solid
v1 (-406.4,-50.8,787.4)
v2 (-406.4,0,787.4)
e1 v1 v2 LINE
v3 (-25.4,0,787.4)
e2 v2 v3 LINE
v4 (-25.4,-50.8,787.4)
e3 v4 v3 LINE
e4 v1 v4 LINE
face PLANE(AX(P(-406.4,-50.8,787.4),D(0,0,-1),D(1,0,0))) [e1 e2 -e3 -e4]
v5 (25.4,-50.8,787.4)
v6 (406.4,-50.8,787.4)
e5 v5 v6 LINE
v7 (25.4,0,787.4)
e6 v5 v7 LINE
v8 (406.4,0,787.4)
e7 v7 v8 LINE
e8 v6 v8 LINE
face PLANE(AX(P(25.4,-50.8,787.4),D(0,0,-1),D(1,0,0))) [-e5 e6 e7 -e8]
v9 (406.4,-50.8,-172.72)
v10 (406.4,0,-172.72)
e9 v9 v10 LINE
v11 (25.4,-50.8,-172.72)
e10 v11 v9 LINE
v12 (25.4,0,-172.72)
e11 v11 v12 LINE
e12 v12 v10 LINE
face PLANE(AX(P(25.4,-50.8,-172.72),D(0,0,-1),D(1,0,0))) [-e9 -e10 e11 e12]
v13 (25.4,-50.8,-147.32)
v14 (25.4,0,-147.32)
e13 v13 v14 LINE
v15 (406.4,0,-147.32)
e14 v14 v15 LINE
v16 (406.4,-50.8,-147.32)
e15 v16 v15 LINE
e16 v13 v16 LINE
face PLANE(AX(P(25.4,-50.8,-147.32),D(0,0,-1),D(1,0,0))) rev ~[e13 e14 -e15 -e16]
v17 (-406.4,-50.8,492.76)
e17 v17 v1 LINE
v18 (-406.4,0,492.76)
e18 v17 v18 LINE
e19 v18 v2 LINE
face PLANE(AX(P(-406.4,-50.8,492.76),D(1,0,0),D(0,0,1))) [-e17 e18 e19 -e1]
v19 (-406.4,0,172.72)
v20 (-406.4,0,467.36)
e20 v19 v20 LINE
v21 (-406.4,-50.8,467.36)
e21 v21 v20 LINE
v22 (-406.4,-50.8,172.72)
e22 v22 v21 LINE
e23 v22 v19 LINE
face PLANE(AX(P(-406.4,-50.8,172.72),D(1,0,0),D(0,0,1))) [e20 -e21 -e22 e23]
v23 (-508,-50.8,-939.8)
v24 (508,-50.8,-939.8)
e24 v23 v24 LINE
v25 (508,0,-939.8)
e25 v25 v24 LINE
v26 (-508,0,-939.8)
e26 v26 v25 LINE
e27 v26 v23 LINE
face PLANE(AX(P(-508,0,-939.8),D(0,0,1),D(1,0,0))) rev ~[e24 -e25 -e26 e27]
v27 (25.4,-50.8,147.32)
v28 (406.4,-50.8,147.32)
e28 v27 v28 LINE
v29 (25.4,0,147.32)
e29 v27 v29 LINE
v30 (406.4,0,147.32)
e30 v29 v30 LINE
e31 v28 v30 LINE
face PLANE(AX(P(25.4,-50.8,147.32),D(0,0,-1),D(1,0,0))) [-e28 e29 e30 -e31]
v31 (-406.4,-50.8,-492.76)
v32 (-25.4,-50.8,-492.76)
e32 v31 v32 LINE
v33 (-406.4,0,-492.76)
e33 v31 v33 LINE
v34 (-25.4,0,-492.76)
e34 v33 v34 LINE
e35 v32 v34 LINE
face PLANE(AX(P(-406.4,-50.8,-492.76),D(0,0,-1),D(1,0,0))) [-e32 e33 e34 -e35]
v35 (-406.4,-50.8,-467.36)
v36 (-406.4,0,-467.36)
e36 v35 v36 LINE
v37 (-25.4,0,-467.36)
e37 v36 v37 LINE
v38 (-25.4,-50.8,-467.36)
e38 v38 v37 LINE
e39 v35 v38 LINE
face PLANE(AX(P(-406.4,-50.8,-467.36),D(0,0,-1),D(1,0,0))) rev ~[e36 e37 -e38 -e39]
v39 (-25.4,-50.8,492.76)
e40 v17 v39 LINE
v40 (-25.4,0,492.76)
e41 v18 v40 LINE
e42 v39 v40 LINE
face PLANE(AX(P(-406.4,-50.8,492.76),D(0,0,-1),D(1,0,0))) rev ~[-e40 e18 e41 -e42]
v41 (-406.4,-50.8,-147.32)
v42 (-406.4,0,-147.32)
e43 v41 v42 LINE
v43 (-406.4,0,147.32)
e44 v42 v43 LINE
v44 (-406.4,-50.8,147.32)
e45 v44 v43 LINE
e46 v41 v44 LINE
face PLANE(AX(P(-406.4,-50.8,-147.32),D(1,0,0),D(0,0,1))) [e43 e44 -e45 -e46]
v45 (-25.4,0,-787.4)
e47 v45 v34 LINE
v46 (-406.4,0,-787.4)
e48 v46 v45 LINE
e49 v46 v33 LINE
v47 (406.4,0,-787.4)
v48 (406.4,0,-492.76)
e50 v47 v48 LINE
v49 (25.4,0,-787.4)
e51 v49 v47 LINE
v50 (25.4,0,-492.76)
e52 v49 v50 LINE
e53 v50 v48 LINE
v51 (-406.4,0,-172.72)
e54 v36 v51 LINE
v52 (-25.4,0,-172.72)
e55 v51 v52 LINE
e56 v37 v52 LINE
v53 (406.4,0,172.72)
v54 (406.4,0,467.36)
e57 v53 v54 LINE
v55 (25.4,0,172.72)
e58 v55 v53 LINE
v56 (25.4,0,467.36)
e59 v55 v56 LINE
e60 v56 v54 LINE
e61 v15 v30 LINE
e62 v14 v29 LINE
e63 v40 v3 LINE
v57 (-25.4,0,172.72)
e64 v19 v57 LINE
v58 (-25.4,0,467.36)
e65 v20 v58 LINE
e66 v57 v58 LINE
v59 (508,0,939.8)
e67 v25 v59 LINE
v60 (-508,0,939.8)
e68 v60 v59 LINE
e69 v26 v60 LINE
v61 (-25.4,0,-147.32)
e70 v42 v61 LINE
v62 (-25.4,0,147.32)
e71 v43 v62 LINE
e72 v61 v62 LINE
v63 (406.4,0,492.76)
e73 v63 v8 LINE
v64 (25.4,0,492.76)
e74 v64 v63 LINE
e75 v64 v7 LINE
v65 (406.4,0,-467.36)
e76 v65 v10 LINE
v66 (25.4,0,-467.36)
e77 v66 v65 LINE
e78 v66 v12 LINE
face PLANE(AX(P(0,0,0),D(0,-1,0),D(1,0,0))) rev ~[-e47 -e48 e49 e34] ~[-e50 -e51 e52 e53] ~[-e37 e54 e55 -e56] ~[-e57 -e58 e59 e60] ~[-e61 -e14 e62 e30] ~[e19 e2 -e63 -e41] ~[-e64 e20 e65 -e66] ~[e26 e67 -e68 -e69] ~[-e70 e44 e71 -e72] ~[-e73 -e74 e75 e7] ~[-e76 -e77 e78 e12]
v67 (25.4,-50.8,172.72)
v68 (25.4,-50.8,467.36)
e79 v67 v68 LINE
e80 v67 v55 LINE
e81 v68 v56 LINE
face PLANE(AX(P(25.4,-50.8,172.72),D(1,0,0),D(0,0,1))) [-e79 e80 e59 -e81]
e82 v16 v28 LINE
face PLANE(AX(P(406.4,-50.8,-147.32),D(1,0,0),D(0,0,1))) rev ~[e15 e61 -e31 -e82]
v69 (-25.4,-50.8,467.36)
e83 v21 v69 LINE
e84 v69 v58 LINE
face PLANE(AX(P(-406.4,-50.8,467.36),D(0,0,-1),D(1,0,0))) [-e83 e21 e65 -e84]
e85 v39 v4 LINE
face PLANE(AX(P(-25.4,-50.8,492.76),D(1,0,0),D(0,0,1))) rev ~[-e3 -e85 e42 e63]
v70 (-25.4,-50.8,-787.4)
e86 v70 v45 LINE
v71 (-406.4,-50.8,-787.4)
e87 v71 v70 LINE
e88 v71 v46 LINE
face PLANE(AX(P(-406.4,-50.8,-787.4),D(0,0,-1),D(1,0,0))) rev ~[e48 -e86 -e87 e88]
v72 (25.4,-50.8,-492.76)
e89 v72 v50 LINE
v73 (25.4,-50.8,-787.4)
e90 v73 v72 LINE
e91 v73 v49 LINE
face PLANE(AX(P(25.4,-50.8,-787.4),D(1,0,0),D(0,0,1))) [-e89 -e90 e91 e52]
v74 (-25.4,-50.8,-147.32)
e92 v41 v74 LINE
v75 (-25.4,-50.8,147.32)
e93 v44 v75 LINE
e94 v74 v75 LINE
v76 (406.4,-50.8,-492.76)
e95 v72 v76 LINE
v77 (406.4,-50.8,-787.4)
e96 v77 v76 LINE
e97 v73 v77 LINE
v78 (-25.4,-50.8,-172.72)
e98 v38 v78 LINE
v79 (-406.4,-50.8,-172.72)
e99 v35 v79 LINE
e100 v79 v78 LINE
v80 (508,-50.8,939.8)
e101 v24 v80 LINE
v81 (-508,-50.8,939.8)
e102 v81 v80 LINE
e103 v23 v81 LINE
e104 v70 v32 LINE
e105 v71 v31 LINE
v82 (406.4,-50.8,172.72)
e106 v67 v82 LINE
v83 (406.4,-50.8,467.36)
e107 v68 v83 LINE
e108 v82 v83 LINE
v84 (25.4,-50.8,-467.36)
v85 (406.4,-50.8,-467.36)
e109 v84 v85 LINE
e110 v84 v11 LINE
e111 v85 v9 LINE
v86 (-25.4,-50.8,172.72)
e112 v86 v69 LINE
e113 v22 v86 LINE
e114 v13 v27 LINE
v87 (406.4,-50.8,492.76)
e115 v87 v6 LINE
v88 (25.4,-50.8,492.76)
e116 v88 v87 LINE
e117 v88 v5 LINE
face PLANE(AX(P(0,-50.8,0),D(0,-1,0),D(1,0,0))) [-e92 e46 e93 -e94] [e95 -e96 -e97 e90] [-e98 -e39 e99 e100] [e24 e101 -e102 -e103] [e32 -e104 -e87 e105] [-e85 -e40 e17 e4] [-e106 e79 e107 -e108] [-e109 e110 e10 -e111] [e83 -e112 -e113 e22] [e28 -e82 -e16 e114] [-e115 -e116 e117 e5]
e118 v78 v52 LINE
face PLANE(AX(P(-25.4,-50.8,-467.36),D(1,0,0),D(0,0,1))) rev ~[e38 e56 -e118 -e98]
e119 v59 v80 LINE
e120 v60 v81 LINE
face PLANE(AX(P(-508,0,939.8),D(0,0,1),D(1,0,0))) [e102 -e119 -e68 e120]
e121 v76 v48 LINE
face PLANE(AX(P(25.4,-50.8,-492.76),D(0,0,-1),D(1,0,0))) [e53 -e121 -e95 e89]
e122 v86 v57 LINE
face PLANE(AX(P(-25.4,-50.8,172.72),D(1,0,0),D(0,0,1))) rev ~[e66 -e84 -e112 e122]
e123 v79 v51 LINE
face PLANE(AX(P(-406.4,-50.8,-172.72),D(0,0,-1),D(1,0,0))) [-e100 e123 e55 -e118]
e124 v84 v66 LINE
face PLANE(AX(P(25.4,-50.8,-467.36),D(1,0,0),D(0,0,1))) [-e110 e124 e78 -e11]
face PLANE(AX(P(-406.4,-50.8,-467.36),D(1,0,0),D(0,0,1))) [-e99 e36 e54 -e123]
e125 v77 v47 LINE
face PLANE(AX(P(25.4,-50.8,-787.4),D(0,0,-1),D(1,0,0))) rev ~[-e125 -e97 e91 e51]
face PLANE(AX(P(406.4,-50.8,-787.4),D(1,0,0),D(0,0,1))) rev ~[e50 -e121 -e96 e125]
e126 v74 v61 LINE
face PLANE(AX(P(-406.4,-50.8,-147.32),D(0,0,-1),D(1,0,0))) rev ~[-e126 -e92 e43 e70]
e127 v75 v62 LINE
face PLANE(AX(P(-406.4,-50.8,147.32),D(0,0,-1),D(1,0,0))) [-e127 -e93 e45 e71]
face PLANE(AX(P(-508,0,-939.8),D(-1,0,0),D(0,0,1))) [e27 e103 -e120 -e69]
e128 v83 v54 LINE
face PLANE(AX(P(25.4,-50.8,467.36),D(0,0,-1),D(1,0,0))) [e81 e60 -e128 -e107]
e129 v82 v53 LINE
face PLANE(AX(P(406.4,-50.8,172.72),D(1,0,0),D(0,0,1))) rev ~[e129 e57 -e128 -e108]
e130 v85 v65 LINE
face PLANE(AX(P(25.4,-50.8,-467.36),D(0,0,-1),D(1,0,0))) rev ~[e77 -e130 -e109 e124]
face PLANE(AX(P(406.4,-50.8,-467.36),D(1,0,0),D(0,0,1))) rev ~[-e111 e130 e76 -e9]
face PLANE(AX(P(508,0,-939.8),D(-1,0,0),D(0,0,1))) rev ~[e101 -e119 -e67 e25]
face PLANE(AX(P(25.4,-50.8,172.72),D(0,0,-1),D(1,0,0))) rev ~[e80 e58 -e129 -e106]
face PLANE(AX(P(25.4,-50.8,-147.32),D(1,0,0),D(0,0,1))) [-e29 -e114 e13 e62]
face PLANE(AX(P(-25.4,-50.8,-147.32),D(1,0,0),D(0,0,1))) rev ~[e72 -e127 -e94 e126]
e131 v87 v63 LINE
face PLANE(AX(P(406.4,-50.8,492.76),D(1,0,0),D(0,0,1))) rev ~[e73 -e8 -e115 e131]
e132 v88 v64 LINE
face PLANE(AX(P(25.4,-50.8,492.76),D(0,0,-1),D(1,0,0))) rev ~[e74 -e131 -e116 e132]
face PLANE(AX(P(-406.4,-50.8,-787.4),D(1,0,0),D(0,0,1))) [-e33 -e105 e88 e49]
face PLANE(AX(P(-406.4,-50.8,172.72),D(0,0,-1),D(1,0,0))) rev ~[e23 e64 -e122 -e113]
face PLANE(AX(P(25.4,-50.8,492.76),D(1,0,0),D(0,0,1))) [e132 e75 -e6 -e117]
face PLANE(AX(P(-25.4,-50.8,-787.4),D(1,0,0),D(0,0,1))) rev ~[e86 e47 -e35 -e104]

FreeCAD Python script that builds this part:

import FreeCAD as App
import Part
import Sketcher
Q = App.Units.Quantity


def add_polygon(sketch, points):
    """Adds a closed chain of lines whose ends are joined by coincident constraints."""
    first, n = sketch.GeometryCount, len(points)
    for a, b in zip(points, points[1:] + points[:1]):
        sketch.addGeometry(Part.LineSegment(App.Vector(*a, 0), App.Vector(*b, 0)), False)
    for i in range(n):
        sketch.addConstraint(Sketcher.Constraint("Coincident", first + i, 2, first + (i + 1) % n, 1))

doc = App.newDocument("Part")
body = doc.addObject("PartDesign::Body", "Body")

sketch1 = body.newObject("Sketcher::SketchObject", "Sketch")
sketch1.AttachmentSupport = (doc.getObject("XZ_Plane"), [""])
sketch1.MapMode = "FlatFace"
add_polygon(sketch1, [(-508, 940), (-508, -940), (508, -940), (508, 940)])
sketch1.addConstraint(Sketcher.Constraint("Vertical", 0))
sketch1.addConstraint(Sketcher.Constraint("Horizontal", 1))
sketch1.addConstraint(Sketcher.Constraint("Vertical", 2))
sketch1.addConstraint(Sketcher.Constraint("Horizontal", 3))
sketch1.addConstraint(Sketcher.Constraint("Symmetric", 0, 2, 2, 2, -1, 1))
sketch1.addConstraint(Sketcher.Constraint("DistanceX", 1, 1, 1, 2, Q("40 in")))
sketch1.addConstraint(Sketcher.Constraint("DistanceY", 0, 2, 0, 1, Q("74 in")))
pad1 = body.newObject("PartDesign::Pad", "Pad")
pad1.Profile = sketch1
pad1.Length = Q("2 in")

sketch2 = body.newObject("Sketcher::SketchObject", "Sketch001")
sketch2.AttachmentSupport = (doc.getObject("XZ_Plane"), [""])
sketch2.MapMode = "FlatFace"
sketch2.AttachmentOffset = App.Placement(App.Vector(0, 0, 2 * 25.4), App.Rotation())
add_polygon(sketch2, [(-406, 787), (-406, 493), (-25, 493), (-25, 787)])
add_polygon(sketch2, [(-406, 467), (-406, 173), (-25, 173), (-25, 467)])
add_polygon(sketch2, [(-406, 147), (-406, -147), (-25, -147), (-25, 147)])
add_polygon(sketch2, [(-406, -173), (-406, -467), (-25, -467), (-25, -173)])
add_polygon(sketch2, [(-406, -493), (-406, -787), (-25, -787), (-25, -493)])
add_polygon(sketch2, [(25, 467), (25, 173), (406, 173), (406, 467)])
add_polygon(sketch2, [(25, 787), (25, 493), (406, 493), (406, 787)])
add_polygon(sketch2, [(25, 147), (25, -147), (406, -147), (406, 147)])
add_polygon(sketch2, [(25, -173), (25, -467), (406, -467), (406, -173)])
add_polygon(sketch2, [(25, -493), (25, -787), (406, -787), (406, -493)])
sketch2.addConstraint(Sketcher.Constraint("Vertical", 0))
sketch2.addConstraint(Sketcher.Constraint("Horizontal", 1))
sketch2.addConstraint(Sketcher.Constraint("Vertical", 2))
sketch2.addConstraint(Sketcher.Constraint("Horizontal", 3))
sketch2.addConstraint(Sketcher.Constraint("Vertical", 4))
sketch2.addConstraint(Sketcher.Constraint("Horizontal", 5))
sketch2.addConstraint(Sketcher.Constraint("Vertical", 6))
sketch2.addConstraint(Sketcher.Constraint("Horizontal", 7))
sketch2.addConstraint(Sketcher.Constraint("Vertical", 8))
sketch2.addConstraint(Sketcher.Constraint("Horizontal", 9))
sketch2.addConstraint(Sketcher.Constraint("Vertical", 10))
sketch2.addConstraint(Sketcher.Constraint("Horizontal", 11))
sketch2.addConstraint(Sketcher.Constraint("Vertical", 12))
sketch2.addConstraint(Sketcher.Constraint("Horizontal", 13))
sketch2.addConstraint(Sketcher.Constraint("Vertical", 14))
sketch2.addConstraint(Sketcher.Constraint("Horizontal", 15))
sketch2.addConstraint(Sketcher.Constraint("Vertical", 16))
sketch2.addConstraint(Sketcher.Constraint("Horizontal", 17))
sketch2.addConstraint(Sketcher.Constraint("Vertical", 18))
sketch2.addConstraint(Sketcher.Constraint("Horizontal", 19))
sketch2.addConstraint(Sketcher.Constraint("Vertical", 20))
sketch2.addConstraint(Sketcher.Constraint("Horizontal", 21))
sketch2.addConstraint(Sketcher.Constraint("Vertical", 22))
sketch2.addConstraint(Sketcher.Constraint("Horizontal", 23))
sketch2.addConstraint(Sketcher.Constraint("Vertical", 24))
sketch2.addConstraint(Sketcher.Constraint("Horizontal", 25))
sketch2.addConstraint(Sketcher.Constraint("Vertical", 26))
sketch2.addConstraint(Sketcher.Constraint("Horizontal", 27))
sketch2.addConstraint(Sketcher.Constraint("Vertical", 28))
sketch2.addConstraint(Sketcher.Constraint("Horizontal", 29))
sketch2.addConstraint(Sketcher.Constraint("Vertical", 30))
sketch2.addConstraint(Sketcher.Constraint("Horizontal", 31))
sketch2.addConstraint(Sketcher.Constraint("Vertical", 32))
sketch2.addConstraint(Sketcher.Constraint("Horizontal", 33))
sketch2.addConstraint(Sketcher.Constraint("Vertical", 34))
sketch2.addConstraint(Sketcher.Constraint("Horizontal", 35))
sketch2.addConstraint(Sketcher.Constraint("Vertical", 36))
sketch2.addConstraint(Sketcher.Constraint("Horizontal", 37))
sketch2.addConstraint(Sketcher.Constraint("Vertical", 38))
sketch2.addConstraint(Sketcher.Constraint("Horizontal", 39))
sketch2.addConstraint(Sketcher.Constraint("Symmetric", 14, 2, 20, 2, -1, 1))
sketch2.addConstraint(Sketcher.Constraint("Symmetric", 12, 2, 22, 2, -1, 1))
sketch2.addConstraint(Sketcher.Constraint("Symmetric", 18, 2, 24, 2, -1, 1))
sketch2.addConstraint(Sketcher.Constraint("Symmetric", 16, 2, 26, 2, -1, 1))
sketch2.addConstraint(Sketcher.Constraint("Symmetric", 10, 2, 28, 2, -1, 1))
sketch2.addConstraint(Sketcher.Constraint("Symmetric", 8, 2, 30, 2, -1, 1))
sketch2.addConstraint(Sketcher.Constraint("Symmetric", 6, 2, 32, 2, -1, 1))
sketch2.addConstraint(Sketcher.Constraint("Symmetric", 4, 2, 34, 2, -1, 1))
sketch2.addConstraint(Sketcher.Constraint("Symmetric", 2, 2, 36, 2, -1, 1))
sketch2.addConstraint(Sketcher.Constraint("Symmetric", 0, 2, 38, 2, -1, 1))
sketch2.addConstraint(Sketcher.Constraint("Symmetric", 5, 2, 20, 2, -2))
sketch2.addConstraint(Sketcher.Constraint("Symmetric", 7, 2, 22, 2, -2))
sketch2.addConstraint(Sketcher.Constraint("Symmetric", 1, 2, 24, 2, -2))
sketch2.addConstraint(Sketcher.Constraint("Symmetric", 3, 2, 26, 2, -2))
sketch2.addConstraint(Sketcher.Constraint("Horizontal", 9, 2, 28, 2))
sketch2.addConstraint(Sketcher.Constraint("Vertical", 3, 2, 4, 2))
sketch2.addConstraint(Sketcher.Constraint("Vertical", 2, 2, 5, 2))
sketch2.addConstraint(Sketcher.Constraint("Vertical", 7, 2, 8, 2))
sketch2.addConstraint(Sketcher.Constraint("Vertical", 6, 2, 9, 2))
sketch2.addConstraint(Sketcher.Constraint("Equal", 2, 4))
sketch2.addConstraint(Sketcher.Constraint("Equal", 6, 8))
sketch2.addConstraint(Sketcher.Constraint("DistanceX", 1, 1, 1, 2, Q("15 in")))
sketch2.addConstraint(Sketcher.Constraint("DistanceY", 0, 2, 0, 1, Q("11.6 in")))
sketch2.addConstraint(Sketcher.Constraint("DistanceX", 0, 2, -1, 1, Q("16 in")))
sketch2.addConstraint(Sketcher.Constraint("DistanceY", -1, 1, 2, 2, Q("31 in")))
sketch2.addConstraint(Sketcher.Constraint("DistanceY", 6, 2, 1, 2, Q("1 in")))
pocket1 = body.newObject("PartDesign::Pocket", "Pocket")
pocket1.Profile = sketch2
pocket1.Type = "ThroughAll"

doc.recompute()
